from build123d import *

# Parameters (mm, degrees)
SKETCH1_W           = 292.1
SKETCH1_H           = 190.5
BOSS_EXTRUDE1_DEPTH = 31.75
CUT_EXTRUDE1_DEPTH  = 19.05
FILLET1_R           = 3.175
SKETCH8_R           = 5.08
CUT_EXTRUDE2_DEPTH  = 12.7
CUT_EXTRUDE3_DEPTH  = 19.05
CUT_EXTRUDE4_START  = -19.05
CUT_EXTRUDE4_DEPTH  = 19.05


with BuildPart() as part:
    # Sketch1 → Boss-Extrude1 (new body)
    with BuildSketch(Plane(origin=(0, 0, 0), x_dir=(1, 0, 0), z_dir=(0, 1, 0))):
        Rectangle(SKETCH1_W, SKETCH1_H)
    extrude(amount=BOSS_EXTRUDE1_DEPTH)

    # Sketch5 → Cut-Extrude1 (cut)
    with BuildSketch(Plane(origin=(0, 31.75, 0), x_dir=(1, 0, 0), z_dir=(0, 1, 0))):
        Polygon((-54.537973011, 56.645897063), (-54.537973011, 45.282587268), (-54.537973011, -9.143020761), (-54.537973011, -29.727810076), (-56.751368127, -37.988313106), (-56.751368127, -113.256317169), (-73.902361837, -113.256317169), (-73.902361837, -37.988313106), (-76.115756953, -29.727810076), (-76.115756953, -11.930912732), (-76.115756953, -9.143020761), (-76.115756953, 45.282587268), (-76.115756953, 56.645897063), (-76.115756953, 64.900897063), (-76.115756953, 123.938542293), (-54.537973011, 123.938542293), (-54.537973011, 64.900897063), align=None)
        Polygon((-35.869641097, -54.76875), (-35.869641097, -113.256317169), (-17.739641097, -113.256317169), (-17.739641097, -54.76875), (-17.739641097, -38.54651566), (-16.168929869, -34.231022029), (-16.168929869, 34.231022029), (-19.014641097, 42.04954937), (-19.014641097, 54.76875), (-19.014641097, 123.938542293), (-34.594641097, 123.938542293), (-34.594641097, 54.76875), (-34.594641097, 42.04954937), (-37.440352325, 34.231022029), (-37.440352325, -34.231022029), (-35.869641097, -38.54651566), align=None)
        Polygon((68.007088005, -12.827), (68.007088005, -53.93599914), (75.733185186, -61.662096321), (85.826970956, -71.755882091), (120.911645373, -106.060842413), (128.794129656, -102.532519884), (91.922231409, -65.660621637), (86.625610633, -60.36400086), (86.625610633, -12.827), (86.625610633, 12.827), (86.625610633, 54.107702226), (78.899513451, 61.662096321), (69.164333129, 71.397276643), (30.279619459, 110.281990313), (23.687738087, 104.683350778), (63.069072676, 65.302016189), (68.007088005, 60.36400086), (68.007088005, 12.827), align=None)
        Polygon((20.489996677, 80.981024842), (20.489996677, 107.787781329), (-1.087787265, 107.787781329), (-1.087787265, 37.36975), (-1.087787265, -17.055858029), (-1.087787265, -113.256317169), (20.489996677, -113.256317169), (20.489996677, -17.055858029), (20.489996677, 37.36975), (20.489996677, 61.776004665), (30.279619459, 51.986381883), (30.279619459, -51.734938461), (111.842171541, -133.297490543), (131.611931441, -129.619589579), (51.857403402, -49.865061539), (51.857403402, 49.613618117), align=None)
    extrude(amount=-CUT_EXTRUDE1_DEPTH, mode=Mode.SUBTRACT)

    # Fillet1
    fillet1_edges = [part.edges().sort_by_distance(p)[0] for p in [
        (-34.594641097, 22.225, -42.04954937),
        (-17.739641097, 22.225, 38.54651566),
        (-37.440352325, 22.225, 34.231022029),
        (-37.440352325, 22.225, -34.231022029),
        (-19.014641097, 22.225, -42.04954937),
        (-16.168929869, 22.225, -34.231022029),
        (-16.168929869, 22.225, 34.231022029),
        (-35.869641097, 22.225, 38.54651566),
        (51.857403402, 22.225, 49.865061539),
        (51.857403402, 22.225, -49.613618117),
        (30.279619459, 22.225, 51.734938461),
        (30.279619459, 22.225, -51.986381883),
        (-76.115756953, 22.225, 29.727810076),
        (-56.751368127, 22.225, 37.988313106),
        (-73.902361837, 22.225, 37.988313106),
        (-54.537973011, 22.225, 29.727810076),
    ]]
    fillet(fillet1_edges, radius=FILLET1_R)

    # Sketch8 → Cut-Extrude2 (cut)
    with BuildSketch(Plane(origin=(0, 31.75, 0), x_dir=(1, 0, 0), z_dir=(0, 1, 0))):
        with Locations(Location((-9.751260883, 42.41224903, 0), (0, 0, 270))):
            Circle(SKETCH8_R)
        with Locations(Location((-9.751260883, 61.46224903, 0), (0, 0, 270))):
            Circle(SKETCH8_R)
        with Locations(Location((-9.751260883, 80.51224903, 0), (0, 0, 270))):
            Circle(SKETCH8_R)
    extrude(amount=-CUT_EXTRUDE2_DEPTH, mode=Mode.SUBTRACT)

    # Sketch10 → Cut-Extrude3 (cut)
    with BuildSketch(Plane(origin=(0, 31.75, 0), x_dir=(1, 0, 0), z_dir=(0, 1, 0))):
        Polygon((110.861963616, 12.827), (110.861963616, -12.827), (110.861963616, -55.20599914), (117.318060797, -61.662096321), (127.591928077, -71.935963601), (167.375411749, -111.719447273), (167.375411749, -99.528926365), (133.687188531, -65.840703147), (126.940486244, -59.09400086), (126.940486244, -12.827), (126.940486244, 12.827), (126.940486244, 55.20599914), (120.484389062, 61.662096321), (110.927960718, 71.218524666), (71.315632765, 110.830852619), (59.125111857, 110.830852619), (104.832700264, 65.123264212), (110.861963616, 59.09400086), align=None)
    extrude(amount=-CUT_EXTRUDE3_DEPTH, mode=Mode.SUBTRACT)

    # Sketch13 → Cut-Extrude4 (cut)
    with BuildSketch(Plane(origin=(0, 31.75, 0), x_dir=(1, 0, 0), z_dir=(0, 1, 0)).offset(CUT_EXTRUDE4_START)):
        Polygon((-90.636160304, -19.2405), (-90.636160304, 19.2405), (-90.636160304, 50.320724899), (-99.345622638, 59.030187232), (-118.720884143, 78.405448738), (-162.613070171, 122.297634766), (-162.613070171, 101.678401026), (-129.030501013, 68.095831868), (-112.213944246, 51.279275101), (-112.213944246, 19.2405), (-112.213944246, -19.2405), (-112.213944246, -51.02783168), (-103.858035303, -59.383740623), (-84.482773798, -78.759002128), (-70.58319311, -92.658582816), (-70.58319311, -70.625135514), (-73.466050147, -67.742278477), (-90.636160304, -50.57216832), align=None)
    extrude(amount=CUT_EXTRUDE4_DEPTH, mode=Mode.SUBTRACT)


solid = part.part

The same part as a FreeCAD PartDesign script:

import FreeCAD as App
import Part
import Sketcher
Q = App.Units.Quantity


def edges_at(feature, points):
    """Names of the edges that pass closest to the given points."""
    edges = feature.Shape.Edges
    near = lambda p: min(range(len(edges)), key=lambda i: edges[i].distToShape(Part.Vertex(*p))[0])
    return sorted({f"Edge{near(p) + 1}" for p in points})


def add_polygon(sketch, points):
    """Adds a closed chain of lines whose ends are joined by coincident constraints."""
    first, n = sketch.GeometryCount, len(points)
    for a, b in zip(points, points[1:] + points[:1]):
        sketch.addGeometry(Part.LineSegment(App.Vector(*a, 0), App.Vector(*b, 0)), False)
    for i in range(n):
        sketch.addConstraint(Sketcher.Constraint("Coincident", first + i, 2, first + (i + 1) % n, 1))

doc = App.newDocument("Part")
params = doc.addObject("Spreadsheet::Sheet", "Params")
for row, (alias, value) in enumerate([
    ("sketch1_width", "11.5 in"),
    ("sketch1_height", "7.5 in"),
    ("pad1_length", "1.25 in"),
    ("sketch2_height", "4.5 in"),
    ("pocket1_length", "0.75 in"),
    ("fillet_radius", "0.125 in"),
    ("sketch3_diameter", "0.4 in"),
    ("pocket2_length", "0.5 in"),
    ("sketch4_height", "4.5 in"),
    ("pocket3_length", "0.75 in"),
    ("pocket4_length", "0.75 in"),
], start=1):
    params.set(f"A{row}", alias)
    params.set(f"B{row}", "=" + value)
    params.setAlias(f"B{row}", alias)

body = doc.addObject("PartDesign::Body", "Body")

# Sketch on XZ plane
sketch1 = body.newObject("Sketcher::SketchObject", "Sketch")
sketch1.AttachmentSupport = (doc.getObject("XZ_Plane"), [""])
sketch1.MapMode = "FlatFace"
add_polygon(sketch1, [(-146.05, -95.25), (-146.05, 95.25), (146.05, 95.25), (146.05, -95.25)])  # lines 0-3
sketch1.addConstraint(Sketcher.Constraint("Vertical", 0))
sketch1.addConstraint(Sketcher.Constraint("Horizontal", 1))
sketch1.addConstraint(Sketcher.Constraint("Vertical", 2))
sketch1.addConstraint(Sketcher.Constraint("Horizontal", 3))
sketch1.addConstraint(Sketcher.Constraint("Symmetric", 0, 2, 2, 2, -1, 1))
sketch1.addConstraint(Sketcher.Constraint("DistanceX", 1, 1, 1, 2, Q("11.5 in")))
sketch1.addConstraint(Sketcher.Constraint("DistanceY", 0, 1, 0, 2, Q("7.5 in")))
sketch1.setExpression("Constraints[9]", "Params.sketch1_width")
sketch1.setExpression("Constraints[10]", "Params.sketch1_height")
pad1 = body.newObject("PartDesign::Pad", "Pad")
pad1.Profile = sketch1
pad1.setExpression("Length", "Params.pad1_length")
pad1.Reversed = True

# Sketch on XZ plane
sketch2 = body.newObject("Sketcher::SketchObject", "Sketch001")
sketch2.AttachmentSupport = (doc.getObject("XZ_Plane"), [""])
sketch2.MapMode = "FlatFace"
sketch2.AttachmentOffset = App.Placement(App.Vector(0, 0, -1.25 * 25.4), App.Rotation())
add_polygon(sketch2, [(-54.537973, 29.72781), (-54.537973, -123.938542), (-76.115757, -123.938542), (-76.115757, 29.72781), (-73.902362, 37.988313), (-73.902362, 113.256317), (-56.751368, 113.256317), (-56.751368, 37.988313)])  # lines 0-7
add_polygon(sketch2, [(-35.869641, 113.256317), (-17.739641, 113.256317), (-17.739641, 38.546516), (-16.16893, 34.231022), (-16.16893, -34.231022), (-19.014641, -42.049549), (-19.014641, -123.938542), (-34.594641, -123.938542), (-34.594641, -42.049549), (-37.440352, -34.231022), (-37.440352, 34.231022), (-35.869641, 38.546516)])  # lines 8-19
add_polygon(sketch2, [(68.007088, 53.935999), (85.826971, 71.755882), (120.911645, 106.060842), (128.79413, 102.53252), (91.922231, 65.660622), (86.625611, 60.364001), (86.625611, -54.107702), (78.899513, -61.662096), (30.279619, -110.28199), (23.687738, -104.683351), (68.007088, -60.364001)])  # lines 20-30
add_polygon(sketch2, [(20.489997, -80.981025), (20.489997, -107.787781), (-1.087787, -107.787781), (-1.087787, 113.256317), (20.489997, 113.256317), (20.489997, -61.776005), (30.279619, -51.986382), (30.279619, 51.734938), (111.842172, 133.297491), (131.611931, 129.61959), (51.857403, 49.865062), (51.857403, -49.613618)])  # lines 31-42
sketch2.addConstraint(Sketcher.Constraint("Vertical", 0))
sketch2.addConstraint(Sketcher.Constraint("Horizontal", 1))
sketch2.addConstraint(Sketcher.Constraint("Vertical", 2))
sketch2.addConstraint(Sketcher.Constraint("Vertical", 4))
sketch2.addConstraint(Sketcher.Constraint("Horizontal", 5))
sketch2.addConstraint(Sketcher.Constraint("Vertical", 6))
sketch2.addConstraint(Sketcher.Constraint("Horizontal", 8))
sketch2.addConstraint(Sketcher.Constraint("Vertical", 9))
sketch2.addConstraint(Sketcher.Constraint("Vertical", 11))
sketch2.addConstraint(Sketcher.Constraint("Vertical", 13))
sketch2.addConstraint(Sketcher.Constraint("Horizontal", 14))
sketch2.addConstraint(Sketcher.Constraint("Vertical", 15))
sketch2.addConstraint(Sketcher.Constraint("Vertical", 17))
sketch2.addConstraint(Sketcher.Constraint("Vertical", 19))
sketch2.addConstraint(Sketcher.Constraint("Vertical", 25))
sketch2.addConstraint(Sketcher.Constraint("Vertical", 30))
sketch2.addConstraint(Sketcher.Constraint("Vertical", 31))
sketch2.addConstraint(Sketcher.Constraint("Horizontal", 32))
sketch2.addConstraint(Sketcher.Constraint("Vertical", 33))
sketch2.addConstraint(Sketcher.Constraint("Horizontal", 34))
sketch2.addConstraint(Sketcher.Constraint("Vertical", 35))
sketch2.addConstraint(Sketcher.Constraint("Vertical", 37))
sketch2.addConstraint(Sketcher.Constraint("Vertical", 41))
sketch2.addConstraint(Sketcher.Constraint("Parallel", 10, 16))
sketch2.addConstraint(Sketcher.Constraint("Parallel", 12, 18))
sketch2.addConstraint(Sketcher.Constraint("Parallel", 20, 23))
sketch2.addConstraint(Sketcher.Constraint("Parallel", 23, 24))
sketch2.addConstraint(Sketcher.Constraint("Parallel", 21, 26))
sketch2.addConstraint(Sketcher.Constraint("Parallel", 24, 27))
sketch2.addConstraint(Sketcher.Constraint("Parallel", 27, 29))
sketch2.addConstraint(Sketcher.Constraint("Parallel", 29, 36))
sketch2.addConstraint(Sketcher.Constraint("Parallel", 36, 38))
sketch2.addConstraint(Sketcher.Constraint("Parallel", 38, 40))
sketch2.addConstraint(Sketcher.Constraint("Parallel", 40, 42))
sketch2.addConstraint(Sketcher.Constraint("Horizontal", 3, 2, 6, 2))
sketch2.addConstraint(Sketcher.Constraint("Horizontal", 2, 2, 7, 2))
sketch2.addConstraint(Sketcher.Constraint("Horizontal", 5, 2, 8, 2))
sketch2.addConstraint(Sketcher.Constraint("Horizontal", 1, 2, 13, 2))
sketch2.addConstraint(Sketcher.Constraint("Horizontal", 12, 2, 15, 2))
sketch2.addConstraint(Sketcher.Constraint("Horizontal", 11, 2, 16, 2))
sketch2.addConstraint(Sketcher.Constraint("Horizontal", 10, 2, 17, 2))
sketch2.addConstraint(Sketcher.Constraint("Horizontal", 9, 2, 18, 2))
sketch2.addConstraint(Sketcher.Constraint("Horizontal", 19, 2, 33, 2))
sketch2.addConstraint(Sketcher.Constraint("Vertical", 31, 2, 34, 2))
sketch2.addConstraint(Sketcher.Constraint("Vertical", 27, 2, 36, 2))
sketch2.addConstraint(Sketcher.Constraint("Equal", 1, 32))
sketch2.addConstraint(Sketcher.Constraint("Equal", 3, 7))
sketch2.addConstraint(Sketcher.Constraint("Equal", 12, 16))
sketch2.addConstraint(Sketcher.Constraint("DistanceY", 30, 1, 30, 2, Q("4.5 in")))
sketch2.addConstraint(Sketcher.Constraint("Angle", 3, Q("75 deg")))
sketch2.addConstraint(Sketcher.Constraint("Angle", 10, Q("-70 deg")))
sketch2.addConstraint(Sketcher.Constraint("Angle", 20, Q("45 deg")))
sketch2.addConstraint(Sketcher.Constraint("DistanceX", 8, 1, 8, 2, 18.13))
sketch2.addConstraint(Sketcher.Constraint("DistanceX", 14, 2, 14, 1, 15.58))
sketch2.addConstraint(Sketcher.Constraint("DistanceY", 9, 2, 9, 1, 74.709802))
sketch2.addConstraint(Sketcher.Constraint("DistanceY", 33, 1, 33, 2, 221.044098))
sketch2.addConstraint(Sketcher.Constraint("DistanceX", 38, 2, 22, 2, Q("0.6673999 in")))
sketch2.addConstraint(Sketcher.Constraint("DistanceY", 35, 2, 35, 1, 175.032322))
sketch2.addConstraint(Sketcher.Constraint("DistanceY", 37, 1, 37, 2, 103.72132))
sketch2.addConstraint(Sketcher.Constraint("DistanceY", 41, 2, 41, 1, 99.47868))
sketch2.addConstraint(Sketcher.Constraint("DistanceY", -1, 1, 24, 2, 60.364001))
sketch2.addConstraint(Sketcher.Constraint("DistanceY", 29, 2, -1, 1, 60.364001))
sketch2.addConstraint(Sketcher.Constraint("DistanceX", 10, 2, 20, 2, 101.995901))
sketch2.addConstraint(Sketcher.Constraint("DistanceX", 23, 2, 22, 2, 36.871898))
sketch2.addConstraint(Sketcher.Constraint("DistanceY", 10, 2, 23, 2, 31.4296))
sketch2.addConstraint(Sketcher.Constraint("DistanceY", 28, 2, 12, 2, 62.633801))
sketch2.addConstraint(Sketcher.Constraint("DistanceY", 29, 2, 25, 2, 6.256299))
sketch2.addConstraint(Sketcher.Constraint("DistanceX", 20, 2, 38, 2, 26.015201))
sketch2.addConstraint(Sketcher.Constraint("DistanceY", 39, 2, 38, 2, 3.677901))
sketch2.addConstraint(Sketcher.Constraint("DistanceX", 22, 2, 39, 2, 2.817802))
sketch2.addConstraint(Sketcher.Constraint("Distance", 20, 25.20112))
sketch2.addConstraint(Sketcher.Constraint("Distance", 21, 49.068979))
sketch2.addConstraint(Sketcher.Constraint("Distance", 26, 10.805621))
sketch2.addConstraint(Sketcher.Constraint("DistanceX", 1, 2, 1, 1, 21.577784))
sketch2.addConstraint(Sketcher.Constraint("DistanceX", 5, 1, 5, 2, 17.150994))
sketch2.addConstraint(Sketcher.Constraint("DistanceY", 0, 2, 0, 1, 153.666352))
sketch2.addConstraint(Sketcher.Constraint("DistanceY", 4, 1, 4, 2, 75.268004))
sketch2.addConstraint(Sketcher.Constraint("DistanceY", 11, 2, 11, 1, 68.462044))
sketch2.addConstraint(Sketcher.Constraint("DistanceY", 13, 2, 13, 1, 81.888993))
sketch2.addConstraint(Sketcher.Constraint("DistanceY", -1, 1, 2, 2, 29.72781))
sketch2.addConstraint(Sketcher.Constraint("DistanceX", 3, 2, -1, 1, 73.902362))
sketch2.addConstraint(Sketcher.Constraint("DistanceX", 8, 2, -1, 1, 17.739641))
sketch2.addConstraint(Sketcher.Constraint("DistanceX", -1, 1, 27, 2, 30.279619))
sketch2.addConstraint(Sketcher.Constraint("DistanceY", 27, 2, -1, 1, 110.28199))
sketch2.addConstraint(Sketcher.Constraint("DistanceY", 36, 2, -1, 1, 51.986382))
sketch2.addConstraint(Sketcher.Constraint("DistanceY", -1, 1, 40, 2, 49.865062))
sketch2.setExpression("Constraints[91]", "Params.sketch2_height")
pocket1 = body.newObject("PartDesign::Pocket", "Pocket")
pocket1.Profile = sketch2
pocket1.setExpression("Length", "Params.pocket1_length")
pocket1.Reversed = True
doc.recompute()

fillet = body.newObject("PartDesign::Fillet", "Fillet")
fillet.Base = (pocket1, edges_at(pocket1, [
    (-34.595, 22.225, -42.05),
    (-17.74, 22.225, 38.547),
    (-37.44, 22.225, 34.231),
    (-37.44, 22.225, -34.231),
    (-19.015, 22.225, -42.05),
    (-16.169, 22.225, -34.231),
    (-16.169, 22.225, 34.231),
    (-35.87, 22.225, 38.547),
    (51.857, 22.225, 49.865),
    (51.857, 22.225, -49.614),
    (30.28, 22.225, 51.735),
    (30.28, 22.225, -51.986),
    (-76.116, 22.225, 29.728),
    (-56.751, 22.225, 37.988),
    (-73.902, 22.225, 37.988),
    (-54.538, 22.225, 29.728),
]))
fillet.setExpression("Radius", "Params.fillet_radius")

# Sketch on XZ plane
sketch3 = body.newObject("Sketcher::SketchObject", "Sketch002")
sketch3.AttachmentSupport = (doc.getObject("XZ_Plane"), [""])
sketch3.MapMode = "FlatFace"
sketch3.AttachmentOffset = App.Placement(App.Vector(0, 0, -1.25 * 25.4), App.Rotation())
sketch3.addGeometry(Part.Circle(App.Vector(-9.751261, -42.412249, 0), App.Vector(0, 0, 1), 5.08), False)
sketch3.addGeometry(Part.Circle(App.Vector(-9.751261, -61.462249, 0), App.Vector(0, 0, 1), 5.08), False)
sketch3.addGeometry(Part.Circle(App.Vector(-9.751261, -80.512249, 0), App.Vector(0, 0, 1), 5.08), False)
sketch3.addConstraint(Sketcher.Constraint("Equal", 0, 1))
sketch3.addConstraint(Sketcher.Constraint("Equal", 1, 2))
sketch3.addConstraint(Sketcher.Constraint("Vertical", 0, 3, 1, 3))
sketch3.addConstraint(Sketcher.Constraint("Vertical", 1, 3, 2, 3))
sketch3.addConstraint(Sketcher.Constraint("Diameter", 0, Q("0.4 in")))
sketch3.addConstraint(Sketcher.Constraint("DistanceY", 2, 3, 0, 3, Q("1.5 in")))
sketch3.addConstraint(Sketcher.Constraint("DistanceY", 1, 3, 0, 3, Q("0.75 in")))
sketch3.addConstraint(Sketcher.Constraint("DistanceX", 0, 3, -1, 1, 9.751261))
sketch3.addConstraint(Sketcher.Constraint("DistanceY", 0, 3, -1, 1, 42.412249))
sketch3.setExpression("Constraints[4]", "Params.sketch3_diameter")
pocket2 = body.newObject("PartDesign::Pocket", "Pocket001")
pocket2.Profile = sketch3
pocket2.setExpression("Length", "Params.pocket2_length")
pocket2.Reversed = True

# Sketch on XZ plane
sketch4 = body.newObject("Sketcher::SketchObject", "Sketch003")
sketch4.AttachmentSupport = (doc.getObject("XZ_Plane"), [""])
sketch4.MapMode = "FlatFace"
sketch4.AttachmentOffset = App.Placement(App.Vector(0, 0, -1.25 * 25.4), App.Rotation())
add_polygon(sketch4, [(110.861964, 55.205999), (167.375412, 111.719447), (167.375412, 99.528926), (126.940486, 59.094001), (126.940486, -55.205999), (120.484389, -61.662096), (110.927961, -71.218525), (71.315633, -110.830853), (59.125112, -110.830853), (110.861964, -59.094001)])  # lines 0-9
sketch4.addConstraint(Sketcher.Constraint("Vertical", 1))
sketch4.addConstraint(Sketcher.Constraint("Vertical", 3))
sketch4.addConstraint(Sketcher.Constraint("Horizontal", 7))
sketch4.addConstraint(Sketcher.Constraint("Vertical", 9))
sketch4.addConstraint(Sketcher.Constraint("Parallel", 0, 2))
sketch4.addConstraint(Sketcher.Constraint("Parallel", 2, 4))
sketch4.addConstraint(Sketcher.Constraint("Parallel", 4, 5))
sketch4.addConstraint(Sketcher.Constraint("Parallel", 5, 6))
sketch4.addConstraint(Sketcher.Constraint("Parallel", 6, 8))
sketch4.addConstraint(Sketcher.Constraint("Equal", 7, 1))
sketch4.addConstraint(Sketcher.Constraint("Equal", 3, 9))
sketch4.addConstraint(Sketcher.Constraint("DistanceY", 3, 2, 3, 1, Q("4.5 in")))
sketch4.addConstraint(Sketcher.Constraint("Distance", 4, 9.1303))
sketch4.addConstraint(Sketcher.Constraint("DistanceX", 7, 2, 7, 1, 12.190521))
sketch4.addConstraint(Sketcher.Constraint("DistanceY", -1, 1, 2, 2, 59.094001))
sketch4.addConstraint(Sketcher.Constraint("DistanceY", 8, 2, -1, 1, 59.094001))
sketch4.addConstraint(Sketcher.Constraint("Distance", 2, 57.18362))
sketch4.addConstraint(Sketcher.Constraint("Distance", 5, 13.514831))
sketch4.addConstraint(Sketcher.Constraint("Distance", 6, 56.020291))
sketch4.addConstraint(Sketcher.Constraint("DistanceX", -1, 1, 0, 2, 167.375412))
sketch4.setExpression("Constraints[21]", "Params.sketch4_height")
pocket3 = body.newObject("PartDesign::Pocket", "Pocket002")
pocket3.Profile = sketch4
pocket3.setExpression("Length", "Params.pocket3_length")
pocket3.Reversed = True

# Sketch on XZ plane
sketch5 = body.newObject("Sketcher::SketchObject", "Sketch004")
sketch5.AttachmentSupport = (doc.getObject("XZ_Plane"), [""])
sketch5.MapMode = "FlatFace"
sketch5.AttachmentOffset = App.Placement(App.Vector(0, 0, -0.5 * 25.4), App.Rotation())
add_polygon(sketch5, [(-90.63616, -50.320725), (-99.345623, -59.030187), (-118.720884, -78.405449), (-162.61307, -122.297635), (-162.61307, -101.678401), (-112.213944, -51.279275), (-112.213944, 51.027832), (-70.583193, 92.658583), (-70.583193, 70.625136), (-90.63616, 50.572168)])  # lines 0-9
sketch5.addConstraint(Sketcher.Constraint("Vertical", 3))
sketch5.addConstraint(Sketcher.Constraint("Vertical", 5))
sketch5.addConstraint(Sketcher.Constraint("Vertical", 7))
sketch5.addConstraint(Sketcher.Constraint("Vertical", 9))
sketch5.addConstraint(Sketcher.Constraint("Parallel", 0, 1))
sketch5.addConstraint(Sketcher.Constraint("Parallel", 1, 2))
sketch5.addConstraint(Sketcher.Constraint("Parallel", 2, 4))
sketch5.addConstraint(Sketcher.Constraint("Parallel", 4, 6))
sketch5.addConstraint(Sketcher.Constraint("Parallel", 6, 8))
sketch5.addConstraint(Sketcher.Constraint("Angle", 0, Q("-135 deg")))
sketch5.addConstraint(Sketcher.Constraint("DistanceY", 3, 2, -1, 1, 101.678401))
sketch5.addConstraint(Sketcher.Constraint("Distance", 0, 12.31704))
sketch5.addConstraint(Sketcher.Constraint("Distance", 8, 28.359178))
sketch5.addConstraint(Sketcher.Constraint("DistanceY", 3, 1, 3, 2, 20.619234))
sketch5.addConstraint(Sketcher.Constraint("DistanceY", 5, 1, 5, 2, 102.307107))
sketch5.addConstraint(Sketcher.Constraint("DistanceY", 7, 2, 7, 1, 22.033447))
sketch5.addConstraint(Sketcher.Constraint("DistanceY", 1, 2, -1, 1, 78.405449))
sketch5.addConstraint(Sketcher.Constraint("DistanceX", 2, 2, -1, 1, 162.61307))
sketch5.addConstraint(Sketcher.Constraint("DistanceY", -1, 1, 5, 2, 51.027832))
sketch5.addConstraint(Sketcher.Constraint("DistanceX", 8, 2, -1, 1, 90.63616))
pocket4 = body.newObject("PartDesign::Pocket", "Pocket003")
pocket4.Profile = sketch5
pocket4.setExpression("Length", "Params.pocket4_length")

doc.recompute()
